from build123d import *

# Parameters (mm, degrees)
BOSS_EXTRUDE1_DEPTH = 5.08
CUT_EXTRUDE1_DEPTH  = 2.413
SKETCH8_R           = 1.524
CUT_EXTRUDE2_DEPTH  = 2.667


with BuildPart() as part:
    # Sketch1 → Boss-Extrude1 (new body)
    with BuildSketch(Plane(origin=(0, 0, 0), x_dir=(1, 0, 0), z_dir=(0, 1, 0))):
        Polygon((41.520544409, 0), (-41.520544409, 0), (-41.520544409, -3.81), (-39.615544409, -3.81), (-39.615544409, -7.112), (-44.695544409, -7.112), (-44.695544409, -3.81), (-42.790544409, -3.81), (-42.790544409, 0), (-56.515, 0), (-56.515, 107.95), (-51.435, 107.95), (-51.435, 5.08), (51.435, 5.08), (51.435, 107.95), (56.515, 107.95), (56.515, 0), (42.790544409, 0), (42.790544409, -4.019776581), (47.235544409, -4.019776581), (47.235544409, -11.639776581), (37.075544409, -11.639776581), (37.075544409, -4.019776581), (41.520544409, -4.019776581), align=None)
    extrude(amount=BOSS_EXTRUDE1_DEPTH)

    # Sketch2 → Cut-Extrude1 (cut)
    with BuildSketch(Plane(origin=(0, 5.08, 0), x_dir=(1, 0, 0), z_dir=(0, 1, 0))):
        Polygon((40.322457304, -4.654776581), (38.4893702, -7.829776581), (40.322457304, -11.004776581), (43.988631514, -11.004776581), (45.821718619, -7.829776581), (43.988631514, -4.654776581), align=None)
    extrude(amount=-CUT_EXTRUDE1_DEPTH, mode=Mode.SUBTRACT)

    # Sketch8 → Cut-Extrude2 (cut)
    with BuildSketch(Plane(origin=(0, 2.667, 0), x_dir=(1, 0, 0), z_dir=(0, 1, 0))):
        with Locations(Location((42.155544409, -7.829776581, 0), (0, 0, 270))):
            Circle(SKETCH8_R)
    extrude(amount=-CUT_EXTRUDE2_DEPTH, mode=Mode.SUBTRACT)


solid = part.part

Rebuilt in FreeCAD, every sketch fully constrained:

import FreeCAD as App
import Part
import Sketcher
Q = App.Units.Quantity


def add_polygon(sketch, points):
    """Adds a closed chain of lines whose ends are joined by coincident constraints."""
    first, n = sketch.GeometryCount, len(points)
    for a, b in zip(points, points[1:] + points[:1]):
        sketch.addGeometry(Part.LineSegment(App.Vector(*a, 0), App.Vector(*b, 0)), False)
    for i in range(n):
        sketch.addConstraint(Sketcher.Constraint("Coincident", first + i, 2, first + (i + 1) % n, 1))

doc = App.newDocument("Part")
body = doc.addObject("PartDesign::Body", "Body")

# Sketch on XZ plane
sketch1 = body.newObject("Sketcher::SketchObject", "Sketch")
sketch1.AttachmentSupport = (doc.getObject("XZ_Plane"), [""])
sketch1.MapMode = "FlatFace"
add_polygon(sketch1, [(-41.5, 0), (41.5, 0), (41.5, 4), (37.1, 4), (37.1, 11.6), (47.2, 11.6), (47.2, 4), (42.8, 4), (42.8, 0), (56.5, 0), (56.5, -108), (51.4, -108), (51.4, -5.1), (-51.4, -5.1), (-51.4, -108), (-56.5, -108), (-56.5, 0), (-42.8, 0), (-42.8, 3.8), (-44.7, 3.8), (-44.7, 7.1), (-39.6, 7.1), (-39.6, 3.8), (-41.5, 3.8)])  # lines 0-23
sketch1.addConstraint([
    Sketcher.Constraint("Horizontal", 0),
    Sketcher.Constraint("Vertical", 1),
    Sketcher.Constraint("Horizontal", 2),
    Sketcher.Constraint("Vertical", 3),
    Sketcher.Constraint("Horizontal", 4),
    Sketcher.Constraint("Vertical", 5),
    Sketcher.Constraint("Horizontal", 6),
    Sketcher.Constraint("Vertical", 7),
    Sketcher.Constraint("Horizontal", 8),
    Sketcher.Constraint("Vertical", 9),
    Sketcher.Constraint("Horizontal", 10),
    Sketcher.Constraint("Vertical", 11),
    Sketcher.Constraint("Horizontal", 12),
    Sketcher.Constraint("Vertical", 13),
    Sketcher.Constraint("Horizontal", 14),
    Sketcher.Constraint("Vertical", 15),
    Sketcher.Constraint("Horizontal", 16),
    Sketcher.Constraint("Vertical", 17),
    Sketcher.Constraint("Horizontal", 18),
    Sketcher.Constraint("Vertical", 19),
    Sketcher.Constraint("Horizontal", 20),
    Sketcher.Constraint("Vertical", 21),
    Sketcher.Constraint("Horizontal", 22),
    Sketcher.Constraint("Vertical", 23),
    Sketcher.Constraint("Symmetric", 8, 2, 15, 2, -1, 1),
    Sketcher.Constraint("Symmetric", 0, 2, 23, 2, -1, 1),
    Sketcher.Constraint("Symmetric", 10, 2, 13, 2, -2),
    Sketcher.Constraint("Symmetric", 7, 2, 16, 2, -2),
    Sketcher.Constraint("Horizontal", 2, 2, 5, 2),
    Sketcher.Constraint("Horizontal", 18, 2, 21, 2),
    Sketcher.Constraint("Equal", 2, 6),
    Sketcher.Constraint("Equal", 14, 20),
    Sketcher.Constraint("Equal", 18, 22),
    Sketcher.Constraint("Equal", 12, 11),
    Sketcher.Constraint("DistanceX", 4, 1, 4, 2, Q("0.4 in")),
    Sketcher.Constraint("DistanceX", 10, 2, 10, 1, Q("0.2 in")),
    Sketcher.Constraint("DistanceY", 3, 1, 3, 2, Q("0.3 in")),
    Sketcher.Constraint("DistanceX", 12, 2, 12, 1, Q("4.05 in")),
    Sketcher.Constraint("DistanceY", 9, 2, 9, 1, Q("4.25 in")),
    Sketcher.Constraint("DistanceY", 17, 1, 17, 2, Q("0.15 in")),
    Sketcher.Constraint("DistanceY", 19, 1, 19, 2, Q("0.13 in")),
    Sketcher.Constraint("DistanceX", 2, 2, 2, 1, Q("0.175 in")),
    Sketcher.Constraint("DistanceX", 0, 1, 0, 2, Q("83.041089 mm")),
    Sketcher.Constraint("DistanceY", 1, 1, 1, 2, Q("4.019777 mm")),
])
pad1 = body.newObject("PartDesign::Pad", "Pad")
pad1.Profile = sketch1
pad1.Length = Q("0.2 in")
pad1.Reversed = True

# Sketch on XZ plane
sketch2 = body.newObject("Sketcher::SketchObject", "Sketch001")
sketch2.AttachmentSupport = (doc.getObject("XZ_Plane"), [""])
sketch2.MapMode = "FlatFace"
sketch2.AttachmentOffset = App.Placement(App.Vector(0, 0, -0.2 * 25.4), App.Rotation())
add_polygon(sketch2, [(40.3, 4.7), (38.5, 7.8), (40.3, 11), (44, 11), (45.8, 7.8), (44, 4.7)])  # lines 0-5
sketch2.addConstraint([
    Sketcher.Constraint("Horizontal", 2),
    Sketcher.Constraint("Horizontal", 5),
    Sketcher.Constraint("Parallel", 0, 3),
    Sketcher.Constraint("Parallel", 1, 4),
    Sketcher.Constraint("Horizontal", 0, 2, 3, 2),
    Sketcher.Constraint("Vertical", 2, 2, 4, 2),
    Sketcher.Constraint("Vertical", 1, 2, 5, 2),
    Sketcher.Constraint("Angle", 0, Q("120 deg")),
    Sketcher.Constraint("DistanceY", 4, 2, 2, 2, Q("0.25 in")),
    Sketcher.Constraint("DistanceX", 2, 1, 2, 2, Q("3.666174 mm")),
    Sketcher.Constraint("DistanceX", -1, 1, 0, 2, Q("38.48937 mm")),
    Sketcher.Constraint("DistanceY", -1, 1, 0, 2, Q("7.829777 mm")),
])
pocket1 = body.newObject("PartDesign::Pocket", "Pocket")
pocket1.Profile = sketch2
pocket1.Length = Q("0.095 in")
pocket1.Reversed = True

# Sketch on XZ plane
sketch3 = body.newObject("Sketcher::SketchObject", "Sketch002")
sketch3.AttachmentSupport = (doc.getObject("XZ_Plane"), [""])
sketch3.MapMode = "FlatFace"
sketch3.AttachmentOffset = App.Placement(App.Vector(0, 0, -0.105 * 25.4), App.Rotation())
sketch3.addGeometry(Part.Circle(App.Vector(42.2, 7.8, 0), App.Vector(0, 0, 1), 1.5), False)
sketch3.addConstraint([
    Sketcher.Constraint("Diameter", 0, Q("0.12 in")),
    Sketcher.Constraint("DistanceX", -1, 1, 0, 3, Q("42.155544 mm")),
    Sketcher.Constraint("DistanceY", -1, 1, 0, 3, Q("7.829777 mm")),
])
pocket2 = body.newObject("PartDesign::Pocket", "Pocket001")
pocket2.Profile = sketch3
pocket2.Length = Q("0.105 in")
pocket2.Reversed = True

doc.recompute()
